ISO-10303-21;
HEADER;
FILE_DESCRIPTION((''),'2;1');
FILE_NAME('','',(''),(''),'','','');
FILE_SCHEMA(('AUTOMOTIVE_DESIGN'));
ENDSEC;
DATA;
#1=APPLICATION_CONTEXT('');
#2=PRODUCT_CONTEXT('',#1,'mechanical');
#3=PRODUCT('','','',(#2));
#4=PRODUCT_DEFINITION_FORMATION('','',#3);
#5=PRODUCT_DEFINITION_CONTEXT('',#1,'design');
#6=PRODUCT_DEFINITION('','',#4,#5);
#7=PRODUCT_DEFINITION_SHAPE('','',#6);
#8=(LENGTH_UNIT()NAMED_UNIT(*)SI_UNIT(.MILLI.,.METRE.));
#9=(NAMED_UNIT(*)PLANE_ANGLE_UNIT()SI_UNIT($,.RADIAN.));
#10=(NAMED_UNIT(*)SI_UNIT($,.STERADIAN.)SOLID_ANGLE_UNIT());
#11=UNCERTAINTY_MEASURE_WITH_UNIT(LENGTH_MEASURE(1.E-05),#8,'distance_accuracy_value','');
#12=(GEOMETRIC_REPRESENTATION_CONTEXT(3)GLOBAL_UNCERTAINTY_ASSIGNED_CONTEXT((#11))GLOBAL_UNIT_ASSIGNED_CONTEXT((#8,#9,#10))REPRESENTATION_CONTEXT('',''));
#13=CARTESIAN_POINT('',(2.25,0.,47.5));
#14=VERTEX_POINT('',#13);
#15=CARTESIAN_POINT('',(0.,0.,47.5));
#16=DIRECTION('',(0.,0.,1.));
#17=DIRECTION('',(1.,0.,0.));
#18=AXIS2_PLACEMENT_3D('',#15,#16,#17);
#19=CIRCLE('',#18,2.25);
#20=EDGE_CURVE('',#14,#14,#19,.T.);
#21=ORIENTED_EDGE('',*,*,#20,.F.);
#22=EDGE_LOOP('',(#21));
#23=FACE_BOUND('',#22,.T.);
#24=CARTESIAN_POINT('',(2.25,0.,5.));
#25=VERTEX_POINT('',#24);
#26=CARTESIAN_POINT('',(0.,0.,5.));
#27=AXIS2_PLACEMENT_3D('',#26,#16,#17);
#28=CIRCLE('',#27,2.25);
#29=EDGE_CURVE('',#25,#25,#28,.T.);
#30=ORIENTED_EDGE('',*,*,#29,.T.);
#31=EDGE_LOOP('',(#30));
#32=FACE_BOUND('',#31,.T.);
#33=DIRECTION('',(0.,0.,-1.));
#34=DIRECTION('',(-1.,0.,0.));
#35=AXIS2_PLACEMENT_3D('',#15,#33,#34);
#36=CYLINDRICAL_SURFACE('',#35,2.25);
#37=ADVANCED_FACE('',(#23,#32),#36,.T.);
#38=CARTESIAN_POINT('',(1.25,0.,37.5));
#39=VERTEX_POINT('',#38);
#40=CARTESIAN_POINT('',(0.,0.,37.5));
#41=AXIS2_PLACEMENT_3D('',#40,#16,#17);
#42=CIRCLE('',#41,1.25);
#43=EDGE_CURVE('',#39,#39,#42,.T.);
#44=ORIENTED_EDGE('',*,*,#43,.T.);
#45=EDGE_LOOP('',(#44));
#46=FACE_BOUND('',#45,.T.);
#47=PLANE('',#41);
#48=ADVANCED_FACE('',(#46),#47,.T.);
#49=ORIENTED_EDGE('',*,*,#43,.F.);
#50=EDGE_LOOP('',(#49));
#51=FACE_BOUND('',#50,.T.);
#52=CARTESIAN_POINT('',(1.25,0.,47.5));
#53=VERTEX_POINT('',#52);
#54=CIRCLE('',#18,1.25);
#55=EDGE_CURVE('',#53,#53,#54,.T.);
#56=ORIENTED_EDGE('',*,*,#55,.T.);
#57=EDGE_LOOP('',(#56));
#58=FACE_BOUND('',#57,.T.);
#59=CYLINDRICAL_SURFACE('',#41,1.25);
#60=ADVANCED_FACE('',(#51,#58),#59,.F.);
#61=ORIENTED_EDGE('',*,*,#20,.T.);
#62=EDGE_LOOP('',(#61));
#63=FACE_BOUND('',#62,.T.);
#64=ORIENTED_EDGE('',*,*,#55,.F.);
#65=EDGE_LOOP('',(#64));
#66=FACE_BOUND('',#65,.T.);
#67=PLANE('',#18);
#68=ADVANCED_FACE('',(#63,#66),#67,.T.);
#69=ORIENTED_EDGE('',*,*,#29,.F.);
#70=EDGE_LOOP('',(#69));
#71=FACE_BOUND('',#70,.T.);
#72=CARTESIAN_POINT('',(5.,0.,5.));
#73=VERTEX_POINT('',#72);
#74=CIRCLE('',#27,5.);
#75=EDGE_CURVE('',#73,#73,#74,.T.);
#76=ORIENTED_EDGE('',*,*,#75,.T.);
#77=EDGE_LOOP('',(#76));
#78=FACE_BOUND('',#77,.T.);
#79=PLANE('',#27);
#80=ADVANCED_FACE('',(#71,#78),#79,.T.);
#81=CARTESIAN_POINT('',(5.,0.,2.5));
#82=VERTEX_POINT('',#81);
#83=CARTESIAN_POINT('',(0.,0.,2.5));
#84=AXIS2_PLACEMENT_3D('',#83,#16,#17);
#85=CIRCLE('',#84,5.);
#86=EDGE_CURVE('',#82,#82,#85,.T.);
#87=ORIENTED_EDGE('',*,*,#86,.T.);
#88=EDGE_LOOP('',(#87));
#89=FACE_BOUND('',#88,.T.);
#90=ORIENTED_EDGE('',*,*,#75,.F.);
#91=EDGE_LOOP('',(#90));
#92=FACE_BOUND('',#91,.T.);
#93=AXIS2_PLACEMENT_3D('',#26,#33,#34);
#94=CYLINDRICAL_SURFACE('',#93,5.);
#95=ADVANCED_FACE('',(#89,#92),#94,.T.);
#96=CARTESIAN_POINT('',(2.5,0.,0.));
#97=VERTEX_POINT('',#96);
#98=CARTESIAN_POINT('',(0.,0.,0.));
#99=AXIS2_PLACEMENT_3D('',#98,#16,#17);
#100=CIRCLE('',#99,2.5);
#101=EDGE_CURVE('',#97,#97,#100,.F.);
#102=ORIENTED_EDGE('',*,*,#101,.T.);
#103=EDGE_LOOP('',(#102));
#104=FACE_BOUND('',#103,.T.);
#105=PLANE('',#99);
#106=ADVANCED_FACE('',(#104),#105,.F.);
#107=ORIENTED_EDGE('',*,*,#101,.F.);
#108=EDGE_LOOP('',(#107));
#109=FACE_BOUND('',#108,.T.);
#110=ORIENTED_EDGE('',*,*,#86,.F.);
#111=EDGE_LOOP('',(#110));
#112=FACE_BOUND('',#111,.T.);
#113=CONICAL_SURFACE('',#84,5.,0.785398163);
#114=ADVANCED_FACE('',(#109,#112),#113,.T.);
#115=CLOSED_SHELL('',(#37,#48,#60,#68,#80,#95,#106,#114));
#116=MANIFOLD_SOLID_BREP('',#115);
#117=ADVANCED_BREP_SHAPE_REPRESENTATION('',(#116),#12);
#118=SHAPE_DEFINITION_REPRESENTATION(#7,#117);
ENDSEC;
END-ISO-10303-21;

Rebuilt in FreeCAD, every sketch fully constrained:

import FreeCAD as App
import Part
import Sketcher

V = App.Vector


def edges_at(feature, points):
    """Names of the edges that pass closest to the given points."""
    edges = feature.Shape.Edges
    near = lambda p: min(range(len(edges)), key=lambda i: edges[i].distToShape(Part.Vertex(*p))[0])
    return sorted({f"Edge{near(p) + 1}" for p in points})

doc = App.newDocument("Part")
params = doc.addObject("Spreadsheet::Sheet", "Params")
for row, (alias, value) in enumerate([
    ("sketch1_diameter", "10 mm"),
    ("pad1_length", "5 mm"),
    ("sketch2_diameter", "4.5 mm"),
    ("pad2_length", "42.5 mm"),
    ("sketch3_diameter", "2.5 mm"),
    ("pocket1_length", "10 mm"),
    ("chamfer_size", "2.5 mm"),
], start=1):
    params.set(f"A{row}", alias)
    params.set(f"B{row}", "=" + value)
    params.setAlias(f"B{row}", alias)

body = doc.addObject("PartDesign::Body", "Body")

# Sketch on XY plane
sketch1 = doc.addObject("Sketcher::SketchObject", "Sketch")
body.addObject(sketch1)
sketch1.AttachmentSupport = (doc.XY_Plane, [""])
sketch1.MapMode = "FlatFace"
sketch1.addGeometry(Part.Circle(V(0, 0, 0), V(0, 0, 1), 5), False)
sketch1.addConstraint([
    Sketcher.Constraint("Coincident", 0, 3, -1, 1),
    Sketcher.Constraint("Diameter", 0, 10.0),
])
sketch1.setExpression("Constraints[1]", "Params.sketch1_diameter")
pad1 = doc.addObject("PartDesign::Pad", "Pad")
body.addObject(pad1)
pad1.Profile = sketch1
pad1.setExpression("Length", "Params.pad1_length")

# Sketch on XY plane
sketch2 = doc.addObject("Sketcher::SketchObject", "Sketch001")
body.addObject(sketch2)
sketch2.AttachmentSupport = (doc.XY_Plane, [""])
sketch2.MapMode = "FlatFace"
sketch2.AttachmentOffset = App.Placement(V(0, 0, 5), App.Rotation())
sketch2.addGeometry(Part.Circle(V(0, 0, 0), V(0, 0, 1), 2.2), False)
sketch2.addConstraint([
    Sketcher.Constraint("Coincident", 0, 3, -1, 1),
    Sketcher.Constraint("Diameter", 0, 4.5),
])
sketch2.setExpression("Constraints[1]", "Params.sketch2_diameter")
pad2 = doc.addObject("PartDesign::Pad", "Pad001")
body.addObject(pad2)
pad2.Profile = sketch2
pad2.setExpression("Length", "Params.pad2_length")

# Sketch on XY plane
sketch3 = doc.addObject("Sketcher::SketchObject", "Sketch002")
body.addObject(sketch3)
sketch3.AttachmentSupport = (doc.XY_Plane, [""])
sketch3.MapMode = "FlatFace"
sketch3.AttachmentOffset = App.Placement(V(0, 0, 47.5), App.Rotation())
sketch3.addGeometry(Part.Circle(V(0, 0, 0), V(0, 0, 1), 1.2), False)
sketch3.addConstraint([
    Sketcher.Constraint("Coincident", 0, 3, -1, 1),
    Sketcher.Constraint("Diameter", 0, 2.5),
])
sketch3.setExpression("Constraints[1]", "Params.sketch3_diameter")
pocket1 = doc.addObject("PartDesign::Pocket", "Pocket")
body.addObject(pocket1)
pocket1.Profile = sketch3
pocket1.setExpression("Length", "Params.pocket1_length")
doc.recompute()

chamfer = doc.addObject("PartDesign::Chamfer", "Chamfer")
body.addObject(chamfer)
chamfer.Base = (pocket1, edges_at(pocket1, [(-5, 0, 0)]))
chamfer.setExpression("Size", "Params.chamfer_size")

doc.recompute()
